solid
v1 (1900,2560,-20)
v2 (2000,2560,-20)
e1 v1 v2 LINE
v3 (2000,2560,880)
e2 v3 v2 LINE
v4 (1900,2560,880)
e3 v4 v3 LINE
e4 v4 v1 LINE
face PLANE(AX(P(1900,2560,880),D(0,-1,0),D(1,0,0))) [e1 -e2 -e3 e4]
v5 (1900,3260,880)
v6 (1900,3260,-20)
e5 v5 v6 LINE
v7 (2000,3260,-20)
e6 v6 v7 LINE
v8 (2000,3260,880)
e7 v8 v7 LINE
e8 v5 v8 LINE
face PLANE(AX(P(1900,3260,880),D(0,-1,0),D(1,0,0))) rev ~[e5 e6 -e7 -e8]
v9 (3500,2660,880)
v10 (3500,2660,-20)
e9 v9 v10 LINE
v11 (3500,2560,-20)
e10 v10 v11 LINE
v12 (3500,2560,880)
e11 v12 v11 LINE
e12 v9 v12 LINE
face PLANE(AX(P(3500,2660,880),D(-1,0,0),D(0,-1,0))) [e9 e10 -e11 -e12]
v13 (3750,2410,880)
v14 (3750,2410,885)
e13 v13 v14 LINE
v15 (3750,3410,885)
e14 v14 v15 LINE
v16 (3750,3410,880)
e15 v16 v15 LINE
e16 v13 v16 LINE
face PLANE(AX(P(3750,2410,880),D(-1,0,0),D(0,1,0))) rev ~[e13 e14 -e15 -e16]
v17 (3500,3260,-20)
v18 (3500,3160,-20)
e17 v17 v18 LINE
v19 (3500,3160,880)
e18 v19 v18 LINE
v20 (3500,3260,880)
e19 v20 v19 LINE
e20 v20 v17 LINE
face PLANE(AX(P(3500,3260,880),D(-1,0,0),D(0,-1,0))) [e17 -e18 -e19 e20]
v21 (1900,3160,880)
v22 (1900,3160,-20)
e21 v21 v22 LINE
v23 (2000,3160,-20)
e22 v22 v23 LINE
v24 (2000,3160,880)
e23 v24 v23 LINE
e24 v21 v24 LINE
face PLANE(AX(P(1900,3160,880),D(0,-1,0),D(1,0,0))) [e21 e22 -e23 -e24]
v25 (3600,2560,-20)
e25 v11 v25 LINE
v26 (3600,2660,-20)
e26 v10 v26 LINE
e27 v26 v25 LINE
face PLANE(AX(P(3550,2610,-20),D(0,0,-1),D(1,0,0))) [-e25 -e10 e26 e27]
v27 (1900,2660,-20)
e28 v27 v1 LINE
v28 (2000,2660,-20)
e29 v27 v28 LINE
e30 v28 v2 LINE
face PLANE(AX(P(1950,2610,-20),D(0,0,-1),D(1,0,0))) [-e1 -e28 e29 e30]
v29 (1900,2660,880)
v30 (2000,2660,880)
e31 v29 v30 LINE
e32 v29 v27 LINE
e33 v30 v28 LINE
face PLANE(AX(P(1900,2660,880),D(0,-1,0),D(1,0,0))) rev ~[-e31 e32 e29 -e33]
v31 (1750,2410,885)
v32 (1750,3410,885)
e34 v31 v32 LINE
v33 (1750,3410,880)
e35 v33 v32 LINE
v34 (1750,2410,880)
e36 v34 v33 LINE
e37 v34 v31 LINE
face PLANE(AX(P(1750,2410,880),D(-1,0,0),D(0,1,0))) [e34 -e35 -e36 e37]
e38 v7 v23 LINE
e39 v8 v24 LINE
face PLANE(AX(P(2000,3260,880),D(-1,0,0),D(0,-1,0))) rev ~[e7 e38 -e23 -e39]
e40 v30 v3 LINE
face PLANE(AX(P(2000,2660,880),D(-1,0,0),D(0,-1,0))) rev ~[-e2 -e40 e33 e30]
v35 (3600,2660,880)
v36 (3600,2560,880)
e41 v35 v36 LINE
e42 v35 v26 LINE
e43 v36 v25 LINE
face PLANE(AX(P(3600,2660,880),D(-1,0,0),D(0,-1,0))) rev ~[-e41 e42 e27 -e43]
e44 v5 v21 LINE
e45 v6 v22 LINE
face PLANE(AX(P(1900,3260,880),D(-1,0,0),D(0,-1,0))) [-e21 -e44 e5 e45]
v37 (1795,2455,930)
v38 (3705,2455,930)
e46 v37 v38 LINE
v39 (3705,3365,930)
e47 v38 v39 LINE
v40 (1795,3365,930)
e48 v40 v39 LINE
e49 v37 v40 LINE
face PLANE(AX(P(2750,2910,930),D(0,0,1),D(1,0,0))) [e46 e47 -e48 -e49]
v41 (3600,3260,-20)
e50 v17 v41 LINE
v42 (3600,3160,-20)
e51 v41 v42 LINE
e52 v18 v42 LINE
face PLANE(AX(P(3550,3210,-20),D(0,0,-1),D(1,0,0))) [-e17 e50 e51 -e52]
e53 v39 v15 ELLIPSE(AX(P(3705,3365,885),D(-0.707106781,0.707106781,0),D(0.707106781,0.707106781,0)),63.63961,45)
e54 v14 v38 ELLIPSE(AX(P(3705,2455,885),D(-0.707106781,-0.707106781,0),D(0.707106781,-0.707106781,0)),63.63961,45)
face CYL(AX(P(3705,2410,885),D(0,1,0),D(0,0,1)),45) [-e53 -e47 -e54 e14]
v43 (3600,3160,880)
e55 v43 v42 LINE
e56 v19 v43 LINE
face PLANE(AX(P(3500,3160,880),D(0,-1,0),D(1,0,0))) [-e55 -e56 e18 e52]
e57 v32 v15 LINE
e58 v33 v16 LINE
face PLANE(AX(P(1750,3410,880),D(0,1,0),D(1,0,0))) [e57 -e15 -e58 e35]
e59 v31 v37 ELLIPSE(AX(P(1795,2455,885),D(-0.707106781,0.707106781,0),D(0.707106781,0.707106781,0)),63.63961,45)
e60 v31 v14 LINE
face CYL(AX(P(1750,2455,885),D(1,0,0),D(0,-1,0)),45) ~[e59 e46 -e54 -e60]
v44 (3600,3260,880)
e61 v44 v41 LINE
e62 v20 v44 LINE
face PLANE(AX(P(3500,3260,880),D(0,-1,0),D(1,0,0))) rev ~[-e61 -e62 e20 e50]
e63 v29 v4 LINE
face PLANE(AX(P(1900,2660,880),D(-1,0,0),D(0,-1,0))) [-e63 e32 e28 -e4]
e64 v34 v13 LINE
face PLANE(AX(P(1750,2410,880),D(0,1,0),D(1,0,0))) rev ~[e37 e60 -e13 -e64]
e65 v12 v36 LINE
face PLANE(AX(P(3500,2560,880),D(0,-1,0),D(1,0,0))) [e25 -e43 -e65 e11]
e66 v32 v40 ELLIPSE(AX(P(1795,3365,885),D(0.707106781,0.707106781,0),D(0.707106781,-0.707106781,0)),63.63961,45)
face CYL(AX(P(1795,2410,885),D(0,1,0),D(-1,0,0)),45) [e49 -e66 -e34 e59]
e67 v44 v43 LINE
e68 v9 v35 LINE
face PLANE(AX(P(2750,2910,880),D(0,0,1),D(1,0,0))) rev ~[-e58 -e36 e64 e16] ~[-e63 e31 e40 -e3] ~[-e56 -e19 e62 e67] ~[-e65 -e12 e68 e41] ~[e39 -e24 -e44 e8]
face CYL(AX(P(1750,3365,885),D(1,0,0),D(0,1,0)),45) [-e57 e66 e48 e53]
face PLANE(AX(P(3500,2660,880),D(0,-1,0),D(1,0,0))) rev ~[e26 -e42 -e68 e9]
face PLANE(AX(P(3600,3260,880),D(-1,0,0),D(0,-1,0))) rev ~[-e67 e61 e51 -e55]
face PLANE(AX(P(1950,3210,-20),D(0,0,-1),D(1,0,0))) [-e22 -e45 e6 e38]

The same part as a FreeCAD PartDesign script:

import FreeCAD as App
import Part
import Sketcher
from FreeCAD import Vector
Q = App.Units.Quantity


def edges_at(feature, points):
    """Names of the edges that pass closest to the given points."""
    edges = feature.Shape.Edges
    near = lambda p: min(range(len(edges)), key=lambda i: edges[i].distToShape(Part.Vertex(*p))[0])
    return sorted({f"Edge{near(p) + 1}" for p in points})


def add_polygon(sketch, points):
    """Adds a closed chain of lines whose ends are joined by coincident constraints."""
    first, n = sketch.GeometryCount, len(points)
    for a, b in zip(points, points[1:] + points[:1]):
        sketch.addGeometry(Part.LineSegment(App.Vector(*a, 0), App.Vector(*b, 0)), False)
    for i in range(n):
        sketch.addConstraint(Sketcher.Constraint("Coincident", first + i, 2, first + (i + 1) % n, 1))

doc = App.newDocument("Part")
params = doc.addObject("Spreadsheet::Sheet", "Params")
for row, (alias, value) in enumerate([
    ("sketch1_width", "2000 mm"),
    ("sketch1_height", "1000 mm"),
    ("pad1_length", "50 mm"),
    ("sketch2_width", "100 mm"),
    ("pad2_length", "900 mm"),
    ("sketch3_width", "100 mm"),
    ("pad3_length", "900 mm"),
    ("sketch4_width", "100 mm"),
    ("pad4_length", "900 mm"),
    ("sketch5_width", "100 mm"),
    ("pad5_length", "900 mm"),
    ("fillet_radius", "45 mm"),
], start=1):
    params.set(f"A{row}", alias)
    params.set(f"B{row}", "=" + value)
    params.setAlias(f"B{row}", alias)

body = doc.addObject("PartDesign::Body", "Body")

sketch1 = doc.addObject("Sketcher::SketchObject", "Sketch")
body.addObject(sketch1)
sketch1.AttachmentSupport = (doc.XY_Plane, [""])
sketch1.MapMode = "FlatFace"
add_polygon(sketch1, [(0, 1000), (0, 0), (2000, 0), (2000, 1000)])
sketch1.addConstraint([
    Sketcher.Constraint("Vertical", 0),
    Sketcher.Constraint("Horizontal", 1),
    Sketcher.Constraint("Vertical", 2),
    Sketcher.Constraint("Horizontal", 3),
    Sketcher.Constraint("Coincident", 0, 2, -1, 1),
    Sketcher.Constraint("DistanceX", 1, 1, 1, 2, Q("2000 mm")),
    Sketcher.Constraint("DistanceY", 0, 2, 0, 1, Q("1000 mm")),
])
sketch1.setExpression("Constraints[9]", "Params.sketch1_width")
sketch1.setExpression("Constraints[10]", "Params.sketch1_height")
pad1 = doc.addObject("PartDesign::Pad", "Pad")
body.addObject(pad1)
pad1.Profile = sketch1
pad1.setExpression("Length", "Params.pad1_length")

sketch2 = doc.addObject("Sketcher::SketchObject", "Sketch001")
body.addObject(sketch2)
sketch2.AttachmentSupport = (doc.XY_Plane, [""])
sketch2.MapMode = "FlatFace"
add_polygon(sketch2, [(150, 150), (150, 250), (250, 250), (250, 150)])
sketch2.addConstraint([
    Sketcher.Constraint("Vertical", 0),
    Sketcher.Constraint("Horizontal", 1),
    Sketcher.Constraint("Vertical", 2),
    Sketcher.Constraint("Horizontal", 3),
    Sketcher.Constraint("Equal", 3, 0),
    Sketcher.Constraint("DistanceX", 1, 1, 1, 2, Q("100 mm")),
    Sketcher.Constraint("DistanceX", -1, 1, 0, 2, Q("150 mm")),
    Sketcher.Constraint("DistanceY", -1, 1, 0, 2, Q("250 mm")),
])
sketch2.setExpression("Constraints[9]", "Params.sketch2_width")
pad2 = doc.addObject("PartDesign::Pad", "Pad001")
body.addObject(pad2)
pad2.Profile = sketch2
pad2.setExpression("Length", "Params.pad2_length")
pad2.Reversed = True

sketch3 = doc.addObject("Sketcher::SketchObject", "Sketch002")
body.addObject(sketch3)
sketch3.AttachmentSupport = (doc.XY_Plane, [""])
sketch3.MapMode = "FlatFace"
add_polygon(sketch3, [(1750, 150), (1750, 250), (1850, 250), (1850, 150)])
sketch3.addConstraint([
    Sketcher.Constraint("Vertical", 0),
    Sketcher.Constraint("Horizontal", 1),
    Sketcher.Constraint("Vertical", 2),
    Sketcher.Constraint("Horizontal", 3),
    Sketcher.Constraint("Equal", 3, 0),
    Sketcher.Constraint("DistanceX", 1, 1, 1, 2, Q("100 mm")),
    Sketcher.Constraint("DistanceX", -1, 1, 0, 2, Q("1750 mm")),
    Sketcher.Constraint("DistanceY", -1, 1, 0, 2, Q("250 mm")),
])
sketch3.setExpression("Constraints[9]", "Params.sketch3_width")
pad3 = doc.addObject("PartDesign::Pad", "Pad002")
body.addObject(pad3)
pad3.Profile = sketch3
pad3.setExpression("Length", "Params.pad3_length")
pad3.Reversed = True

sketch4 = doc.addObject("Sketcher::SketchObject", "Sketch003")
body.addObject(sketch4)
sketch4.AttachmentSupport = (doc.XY_Plane, [""])
sketch4.MapMode = "FlatFace"
add_polygon(sketch4, [(150, 750), (150, 850), (250, 850), (250, 750)])
sketch4.addConstraint([
    Sketcher.Constraint("Vertical", 0),
    Sketcher.Constraint("Horizontal", 1),
    Sketcher.Constraint("Vertical", 2),
    Sketcher.Constraint("Horizontal", 3),
    Sketcher.Constraint("Equal", 3, 0),
    Sketcher.Constraint("DistanceX", 1, 1, 1, 2, Q("100 mm")),
    Sketcher.Constraint("DistanceX", -1, 1, 0, 2, Q("150 mm")),
    Sketcher.Constraint("DistanceY", -1, 1, 0, 2, Q("850 mm")),
])
sketch4.setExpression("Constraints[9]", "Params.sketch4_width")
pad4 = doc.addObject("PartDesign::Pad", "Pad003")
body.addObject(pad4)
pad4.Profile = sketch4
pad4.setExpression("Length", "Params.pad4_length")
pad4.Reversed = True

sketch5 = doc.addObject("Sketcher::SketchObject", "Sketch004")
body.addObject(sketch5)
sketch5.AttachmentSupport = (doc.XY_Plane, [""])
sketch5.MapMode = "FlatFace"
add_polygon(sketch5, [(1750, 750), (1750, 850), (1850, 850), (1850, 750)])
sketch5.addConstraint([
    Sketcher.Constraint("Vertical", 0),
    Sketcher.Constraint("Horizontal", 1),
    Sketcher.Constraint("Vertical", 2),
    Sketcher.Constraint("Horizontal", 3),
    Sketcher.Constraint("Equal", 3, 0),
    Sketcher.Constraint("DistanceX", 1, 1, 1, 2, Q("100 mm")),
    Sketcher.Constraint("DistanceX", -1, 1, 0, 2, Q("1750 mm")),
    Sketcher.Constraint("DistanceY", -1, 1, 0, 2, Q("850 mm")),
])
sketch5.setExpression("Constraints[9]", "Params.sketch5_width")
pad5 = doc.addObject("PartDesign::Pad", "Pad004")
body.addObject(pad5)
pad5.Profile = sketch5
pad5.setExpression("Length", "Params.pad5_length")
pad5.Reversed = True
doc.recompute()

fillet = doc.addObject("PartDesign::Fillet", "Fillet")
body.addObject(fillet)
fillet.Base = (pad5, edges_at(pad5, [
    (1000, 0, 50),
    (2000, 500, 50),
    (1000, 1000, 50),
    (0, 500, 50),
]))
fillet.setExpression("Radius", "Params.fillet_radius")
body2 = doc.addObject("PartDesign::Body", "Body001")
doc.recompute()

body.Placement = App.Placement(Vector(1750, 2410, 880), App.Rotation(Vector(0, 0, 1), 0))
boolean = doc.addObject("PartDesign::Boolean", "Boolean")
body2.addObject(boolean)
boolean.Type = "Fuse"
boolean.addObjects([body])

doc.recompute()
